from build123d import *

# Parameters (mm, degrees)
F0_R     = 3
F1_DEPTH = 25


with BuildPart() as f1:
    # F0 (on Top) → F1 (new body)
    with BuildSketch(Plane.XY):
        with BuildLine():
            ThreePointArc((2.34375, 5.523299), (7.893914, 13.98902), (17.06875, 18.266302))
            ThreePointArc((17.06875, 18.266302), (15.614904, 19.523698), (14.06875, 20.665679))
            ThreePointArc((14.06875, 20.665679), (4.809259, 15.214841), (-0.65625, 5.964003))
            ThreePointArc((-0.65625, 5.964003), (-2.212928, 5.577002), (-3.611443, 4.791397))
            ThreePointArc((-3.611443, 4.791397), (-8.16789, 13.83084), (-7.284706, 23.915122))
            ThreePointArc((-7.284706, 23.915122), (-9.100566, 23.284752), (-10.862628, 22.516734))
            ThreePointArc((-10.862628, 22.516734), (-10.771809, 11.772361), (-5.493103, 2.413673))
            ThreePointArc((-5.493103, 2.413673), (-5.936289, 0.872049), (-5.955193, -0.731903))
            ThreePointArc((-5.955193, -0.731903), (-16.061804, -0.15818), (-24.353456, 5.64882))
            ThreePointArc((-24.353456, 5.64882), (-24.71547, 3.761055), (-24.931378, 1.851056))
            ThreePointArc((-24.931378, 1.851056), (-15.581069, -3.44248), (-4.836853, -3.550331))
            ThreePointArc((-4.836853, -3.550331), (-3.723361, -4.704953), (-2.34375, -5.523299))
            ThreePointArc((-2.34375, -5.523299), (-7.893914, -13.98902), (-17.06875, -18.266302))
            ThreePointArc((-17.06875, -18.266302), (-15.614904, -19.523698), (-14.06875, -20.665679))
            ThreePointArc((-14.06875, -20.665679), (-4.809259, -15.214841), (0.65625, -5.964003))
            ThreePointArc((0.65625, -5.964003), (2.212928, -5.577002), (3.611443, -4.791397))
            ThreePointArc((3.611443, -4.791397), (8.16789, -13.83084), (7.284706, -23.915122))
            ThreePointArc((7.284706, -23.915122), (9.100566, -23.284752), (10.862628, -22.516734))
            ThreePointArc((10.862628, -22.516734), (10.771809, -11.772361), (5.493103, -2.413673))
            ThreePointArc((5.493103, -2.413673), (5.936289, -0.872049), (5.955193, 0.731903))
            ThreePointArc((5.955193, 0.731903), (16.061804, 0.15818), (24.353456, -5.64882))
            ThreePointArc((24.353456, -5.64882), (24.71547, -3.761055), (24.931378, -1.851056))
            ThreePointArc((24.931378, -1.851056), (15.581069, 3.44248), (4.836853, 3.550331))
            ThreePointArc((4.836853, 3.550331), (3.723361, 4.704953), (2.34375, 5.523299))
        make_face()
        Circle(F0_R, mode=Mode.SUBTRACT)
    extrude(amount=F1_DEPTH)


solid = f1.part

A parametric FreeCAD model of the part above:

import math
import FreeCAD as App
import Part
import Sketcher

doc = App.newDocument("Part")
body = doc.addObject("PartDesign::Body", "Body")

# Sketch on XY plane
sketch1 = body.newObject("Sketcher::SketchObject", "Sketch")
sketch1.AttachmentSupport = (doc.getObject("XY_Plane"), [""])
sketch1.MapMode = "FlatFace"
sketch1.addGeometry([
    Part.ArcOfCircle(Part.Circle(App.Vector(20.000001, -0.000001, 0), App.Vector(0, 0, 1), 18.500001), math.radians(99.116708), math.radians(162.629063)),  # 0
    Part.ArcOfCircle(Part.Circle(App.Vector(-0.00002, -0.000025, 0), App.Vector(0, 0, 1), 25.000032), math.radians(46.941093), math.radians(55.753802)),  # 1
    Part.ArcOfCircle(Part.Circle(App.Vector(20.000001, -0.000001, 0), App.Vector(0, 0, 1), 21.500001), math.radians(106.013994), math.radians(163.895179)),  # 2
    Part.ArcOfCircle(Part.Circle(App.Vector(-0.000002, 0.000001, 0), App.Vector(0, 0, 1), 5.999998), math.radians(96.279269), math.radians(127.006598)),  # 3
    Part.ArcOfCircle(Part.Circle(App.Vector(9.999998, 17.320507, 0), App.Vector(0, 0, 1), 18.499998), math.radians(159.1167), math.radians(222.629064)),  # 4
    Part.ArcOfCircle(Part.Circle(App.Vector(0.000055, -0.00014, 0), App.Vector(0, 0, 1), 25.00015), math.radians(106.941114), math.radians(115.753783)),  # 5
    Part.ArcOfCircle(Part.Circle(App.Vector(10.000001, 17.320509, 0), App.Vector(0, 0, 1), 21.500001), math.radians(166.013996), math.radians(223.895179)),  # 6
    Part.ArcOfCircle(Part.Circle(App.Vector(0.000012, -0.000003, 0), App.Vector(0, 0, 1), 6.000012), math.radians(156.279302), math.radians(187.006566)),  # 7
    Part.ArcOfCircle(Part.Circle(App.Vector(-10, 17.320508, 0), App.Vector(0, 0, 1), 18.5), math.radians(-140.883294), math.radians(-77.370939)),  # 8
    Part.ArcOfCircle(Part.Circle(App.Vector(0.000065, -0.000014, 0), App.Vector(0, 0, 1), 25.000067), math.radians(166.94109), math.radians(175.753785)),  # 9
    Part.ArcOfCircle(Part.Circle(App.Vector(-10, 17.320508, 0), App.Vector(0, 0, 1), 21.5), math.radians(-133.986011), math.radians(-76.104821)),  # 10
    Part.ArcOfCircle(Part.Circle(App.Vector(-0.000005, -0.000006, 0), App.Vector(0, 0, 1), 5.999992), math.radians(-143.720726), math.radians(-112.993374)),  # 11
    Part.ArcOfCircle(Part.Circle(App.Vector(-20.000001, 0.000001, 0), App.Vector(0, 0, 1), 18.500001), math.radians(-80.883292), math.radians(-17.370937)),  # 12
    Part.ArcOfCircle(Part.Circle(App.Vector(0.00002, 0.000025, 0), App.Vector(0, 0, 1), 25.000032), math.radians(-133.058907), math.radians(-124.246198)),  # 13
    Part.ArcOfCircle(Part.Circle(App.Vector(-20.000001, 0.000001, 0), App.Vector(0, 0, 1), 21.500001), math.radians(-73.986006), math.radians(-16.104821)),  # 14
    Part.ArcOfCircle(Part.Circle(App.Vector(0.000002, -0.000001, 0), App.Vector(0, 0, 1), 5.999998), math.radians(-83.720731), math.radians(-52.993402)),  # 15
    Part.ArcOfCircle(Part.Circle(App.Vector(-9.999998, -17.320507, 0), App.Vector(0, 0, 1), 18.499998), math.radians(-20.8833), math.radians(42.629064)),  # 16
    Part.ArcOfCircle(Part.Circle(App.Vector(-0.000055, 0.00014, 0), App.Vector(0, 0, 1), 25.00015), math.radians(-73.058886), math.radians(-64.246217)),  # 17
    Part.ArcOfCircle(Part.Circle(App.Vector(-10.000001, -17.320509, 0), App.Vector(0, 0, 1), 21.500001), math.radians(-13.986004), math.radians(43.895179)),  # 18
    Part.ArcOfCircle(Part.Circle(App.Vector(-0.000012, 0.000003, 0), App.Vector(0, 0, 1), 6.000012), math.radians(-23.720698), math.radians(7.006566)),  # 19
    Part.ArcOfCircle(Part.Circle(App.Vector(10, -17.320508, 0), App.Vector(0, 0, 1), 18.5), math.radians(39.116706), math.radians(102.629061)),  # 20
    Part.ArcOfCircle(Part.Circle(App.Vector(-0.000065, 0.000014, 0), App.Vector(0, 0, 1), 25.000067), math.radians(-13.05891), math.radians(-4.246215)),  # 21
    Part.ArcOfCircle(Part.Circle(App.Vector(10, -17.320508, 0), App.Vector(0, 0, 1), 21.5), math.radians(46.013989), math.radians(103.895179)),  # 22
    Part.ArcOfCircle(Part.Circle(App.Vector(0.000005, 0.000006, 0), App.Vector(0, 0, 1), 5.999992), math.radians(36.279274), math.radians(67.006626)),  # 23
    Part.Circle(App.Vector(0, 0, 0), App.Vector(0, 0, 1), 3),  # 24
], False)
sketch1.addConstraint([
    Sketcher.Constraint("Coincident", 0, 1, 1, 1),
    Sketcher.Constraint("Coincident", 1, 2, 2, 1),
    Sketcher.Constraint("Coincident", 2, 2, 3, 1),
    Sketcher.Constraint("Coincident", 3, 2, 4, 2),
    Sketcher.Constraint("Coincident", 4, 1, 5, 1),
    Sketcher.Constraint("Coincident", 5, 2, 6, 1),
    Sketcher.Constraint("Coincident", 6, 2, 7, 1),
    Sketcher.Constraint("Coincident", 7, 2, 8, 2),
    Sketcher.Constraint("Coincident", 8, 1, 9, 1),
    Sketcher.Constraint("Coincident", 9, 2, 10, 1),
    Sketcher.Constraint("Coincident", 10, 2, 11, 1),
    Sketcher.Constraint("Coincident", 11, 2, 12, 2),
    Sketcher.Constraint("Coincident", 12, 1, 13, 1),
    Sketcher.Constraint("Coincident", 13, 2, 14, 1),
    Sketcher.Constraint("Coincident", 14, 2, 15, 1),
    Sketcher.Constraint("Coincident", 15, 2, 16, 2),
    Sketcher.Constraint("Coincident", 16, 1, 17, 1),
    Sketcher.Constraint("Coincident", 17, 2, 18, 1),
    Sketcher.Constraint("Coincident", 18, 2, 19, 1),
    Sketcher.Constraint("Coincident", 19, 2, 20, 2),
    Sketcher.Constraint("Coincident", 20, 1, 21, 1),
    Sketcher.Constraint("Coincident", 21, 2, 22, 1),
    Sketcher.Constraint("Coincident", 22, 2, 23, 1),
    Sketcher.Constraint("Coincident", 23, 2, 0, 2),
    Sketcher.Constraint("Coincident", 3, 3, -1, 1),
    Sketcher.Constraint("Coincident", 11, 3, -1, 1),
    Sketcher.Constraint("Coincident", 15, 3, -1, 1),
    Sketcher.Constraint("Coincident", 23, 3, -1, 1),
    Sketcher.Constraint("Coincident", 24, 3, -1, 1),
    Sketcher.Constraint("Coincident", 2, 3, 0, 3),
    Sketcher.Constraint("Coincident", 6, 3, 4, 3),
    Sketcher.Constraint("Coincident", 10, 3, 8, 3),
    Sketcher.Constraint("Coincident", 14, 3, 12, 3),
    Sketcher.Constraint("Coincident", 18, 3, 16, 3),
    Sketcher.Constraint("Coincident", 19, 3, 3, 3),
    Sketcher.Constraint("Coincident", 22, 3, 20, 3),
    Sketcher.Constraint("Equal", 2, 6),
    Sketcher.Constraint("Equal", 4, 8),
    Sketcher.Constraint("Equal", 6, 10),
    Sketcher.Constraint("Equal", 8, 12),
    Sketcher.Constraint("Equal", 1, 13),
    Sketcher.Constraint("Equal", 10, 14),
    Sketcher.Constraint("Equal", 3, 15),
    Sketcher.Constraint("Equal", 8, 16),
    Sketcher.Constraint("Equal", 5, 17),
    Sketcher.Constraint("Equal", 14, 18),
    Sketcher.Constraint("Equal", 7, 19),
    Sketcher.Constraint("Equal", 16, 20),
    Sketcher.Constraint("Equal", 9, 21),
    Sketcher.Constraint("Equal", 18, 22),
    Sketcher.Constraint("Equal", 11, 23),
    Sketcher.Constraint("Symmetric", 3, 3, 7, 3, -1, 1),
    Sketcher.Constraint("Symmetric", 0, 3, 12, 3, -1, 1),
    Sketcher.Constraint("Symmetric", 1, 3, 13, 3, -1, 1),
    Sketcher.Constraint("Symmetric", 4, 3, 16, 3, -1, 1),
    Sketcher.Constraint("Symmetric", 5, 3, 17, 3, -1, 1),
    Sketcher.Constraint("Symmetric", 8, 3, 20, 3, -1, 1),
    Sketcher.Constraint("Symmetric", 9, 3, 21, 3, -1, 1),
    Sketcher.Constraint("Symmetric", 4, 3, 8, 3, -2),
    Sketcher.Constraint("PointOnObject", 0, 3, -1),
    Sketcher.Constraint("Diameter", 24, 6.0),
    Sketcher.Constraint("Radius", 3, 5.999998),
    Sketcher.Constraint("Radius", 0, 18.500001),
    Sketcher.Constraint("Radius", 2, 21.500001),
    Sketcher.Constraint("Radius", 4, 18.499998),
    Sketcher.Constraint("DistanceX", -1, 1, 0, 3, 20.000001),
    Sketcher.Constraint("DistanceX", -1, 1, 4, 3, 9.999998),
    Sketcher.Constraint("DistanceX", 1, 2, 0, 1, 3.0),
    Sketcher.Constraint("DistanceX", 11, 2, 14, 2, 3.0),
    Sketcher.Constraint("Radius", 1, 25.000032),
    Sketcher.Constraint("Radius", 5, 25.00015),
    Sketcher.Constraint("Radius", 7, 6.000012),
    Sketcher.Constraint("Radius", 9, 25.000067),
    Sketcher.Constraint("DistanceX", 13, 2, 11, 2, 11.725),
    Sketcher.Constraint("DistanceY", 16, 3, 11, 3, 17.320501),
    Sketcher.Constraint("DistanceY", 5, 3, -1, 1, 0.00014),
    Sketcher.Constraint("DistanceX", 5, 2, -1, 1, 10.862628),
    Sketcher.Constraint("DistanceY", -1, 1, 8, 1, 5.64882),
    Sketcher.Constraint("DistanceX", 9, 2, -1, 1, 24.931378),
])
pad1 = body.newObject("PartDesign::Pad", "Pad")
pad1.Profile = sketch1
pad1.Length = 25

doc.recompute()
